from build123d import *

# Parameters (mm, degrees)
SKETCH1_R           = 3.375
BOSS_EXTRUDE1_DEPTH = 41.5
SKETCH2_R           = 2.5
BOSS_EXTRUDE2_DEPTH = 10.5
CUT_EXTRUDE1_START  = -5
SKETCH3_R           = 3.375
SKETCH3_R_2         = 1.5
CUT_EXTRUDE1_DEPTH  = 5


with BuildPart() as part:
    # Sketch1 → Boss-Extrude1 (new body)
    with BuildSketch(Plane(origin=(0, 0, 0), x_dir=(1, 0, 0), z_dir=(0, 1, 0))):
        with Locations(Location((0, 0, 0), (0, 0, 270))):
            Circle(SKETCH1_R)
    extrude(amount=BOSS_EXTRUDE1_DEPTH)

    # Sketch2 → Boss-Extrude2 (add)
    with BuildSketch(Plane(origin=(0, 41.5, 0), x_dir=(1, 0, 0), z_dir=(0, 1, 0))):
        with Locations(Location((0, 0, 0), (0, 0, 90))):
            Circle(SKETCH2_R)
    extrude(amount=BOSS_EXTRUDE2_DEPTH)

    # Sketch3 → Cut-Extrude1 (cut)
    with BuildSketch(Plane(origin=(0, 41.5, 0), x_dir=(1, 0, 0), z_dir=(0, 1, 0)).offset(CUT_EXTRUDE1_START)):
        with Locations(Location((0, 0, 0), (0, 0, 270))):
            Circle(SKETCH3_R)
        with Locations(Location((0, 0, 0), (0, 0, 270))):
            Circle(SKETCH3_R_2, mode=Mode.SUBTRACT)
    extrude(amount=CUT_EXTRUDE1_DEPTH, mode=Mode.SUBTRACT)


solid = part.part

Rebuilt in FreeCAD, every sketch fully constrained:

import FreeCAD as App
import Part
import Sketcher

V = App.Vector
Q = App.Units.Quantity

doc = App.newDocument("Part")
params = doc.addObject("Spreadsheet::Sheet", "Params")
for row, (alias, value) in enumerate([
    ("sketch1_diameter", "6.75 mm"),
    ("pad1_length", "41.5 mm"),
    ("sketch2_diameter", "5 mm"),
    ("pad2_length", "10.5 mm"),
    ("sketch3_diameter", "3 mm"),
    ("sketch3_diameter2", "6.75 mm"),
    ("pocket1_length", "5 mm"),
], start=1):
    params.set(f"A{row}", alias)
    params.set(f"B{row}", "=" + value)
    params.setAlias(f"B{row}", alias)

body = doc.addObject("PartDesign::Body", "Body")

# Sketch on XZ plane
sketch1 = body.newObject("Sketcher::SketchObject", "Sketch")
sketch1.AttachmentSupport = (doc.getObject("XZ_Plane"), [""])
sketch1.MapMode = "FlatFace"
sketch1.addGeometry(Part.Circle(V(0, 0, 0), V(0, 0, 1), 3.375), False)
sketch1.addConstraint(Sketcher.Constraint("Coincident", 0, 3, -1, 1))
sketch1.addConstraint(Sketcher.Constraint("Diameter", 0, Q("6.75 mm")))
sketch1.setExpression("Constraints[1]", "Params.sketch1_diameter")
pad1 = body.newObject("PartDesign::Pad", "Pad")
pad1.Profile = sketch1
pad1.setExpression("Length", "Params.pad1_length")
pad1.Reversed = True

# Sketch on XZ plane
sketch2 = body.newObject("Sketcher::SketchObject", "Sketch001")
sketch2.AttachmentSupport = (doc.getObject("XZ_Plane"), [""])
sketch2.MapMode = "FlatFace"
sketch2.AttachmentOffset = App.Placement(V(0, 0, -41.5), App.Rotation())
sketch2.addGeometry(Part.Circle(V(0, 0, 0), V(0, 0, 1), 2.5), False)
sketch2.addConstraint(Sketcher.Constraint("Coincident", 0, 3, -1, 1))
sketch2.addConstraint(Sketcher.Constraint("Diameter", 0, Q("5 mm")))
sketch2.setExpression("Constraints[1]", "Params.sketch2_diameter")
pad2 = body.newObject("PartDesign::Pad", "Pad001")
pad2.Profile = sketch2
pad2.setExpression("Length", "Params.pad2_length")
pad2.Reversed = True

# Sketch on XZ plane
sketch3 = body.newObject("Sketcher::SketchObject", "Sketch002")
sketch3.AttachmentSupport = (doc.getObject("XZ_Plane"), [""])
sketch3.MapMode = "FlatFace"
sketch3.AttachmentOffset = App.Placement(V(0, 0, -36.5), App.Rotation())
sketch3.addGeometry(Part.Circle(V(0, 0, 0), V(0, 0, 1), 3.375), False)
sketch3.addGeometry(Part.Circle(V(0, 0, 0), V(0, 0, 1), 1.5), False)
sketch3.addConstraint(Sketcher.Constraint("Coincident", 0, 3, -1, 1))
sketch3.addConstraint(Sketcher.Constraint("Coincident", 1, 3, -1, 1))
sketch3.addConstraint(Sketcher.Constraint("Diameter", 1, Q("3 mm")))
sketch3.addConstraint(Sketcher.Constraint("Diameter", 0, Q("6.75 mm")))
sketch3.setExpression("Constraints[2]", "Params.sketch3_diameter")
sketch3.setExpression("Constraints[3]", "Params.sketch3_diameter2")
pocket1 = body.newObject("PartDesign::Pocket", "Pocket")
pocket1.Profile = sketch3
pocket1.setExpression("Length", "Params.pocket1_length")

doc.recompute()
